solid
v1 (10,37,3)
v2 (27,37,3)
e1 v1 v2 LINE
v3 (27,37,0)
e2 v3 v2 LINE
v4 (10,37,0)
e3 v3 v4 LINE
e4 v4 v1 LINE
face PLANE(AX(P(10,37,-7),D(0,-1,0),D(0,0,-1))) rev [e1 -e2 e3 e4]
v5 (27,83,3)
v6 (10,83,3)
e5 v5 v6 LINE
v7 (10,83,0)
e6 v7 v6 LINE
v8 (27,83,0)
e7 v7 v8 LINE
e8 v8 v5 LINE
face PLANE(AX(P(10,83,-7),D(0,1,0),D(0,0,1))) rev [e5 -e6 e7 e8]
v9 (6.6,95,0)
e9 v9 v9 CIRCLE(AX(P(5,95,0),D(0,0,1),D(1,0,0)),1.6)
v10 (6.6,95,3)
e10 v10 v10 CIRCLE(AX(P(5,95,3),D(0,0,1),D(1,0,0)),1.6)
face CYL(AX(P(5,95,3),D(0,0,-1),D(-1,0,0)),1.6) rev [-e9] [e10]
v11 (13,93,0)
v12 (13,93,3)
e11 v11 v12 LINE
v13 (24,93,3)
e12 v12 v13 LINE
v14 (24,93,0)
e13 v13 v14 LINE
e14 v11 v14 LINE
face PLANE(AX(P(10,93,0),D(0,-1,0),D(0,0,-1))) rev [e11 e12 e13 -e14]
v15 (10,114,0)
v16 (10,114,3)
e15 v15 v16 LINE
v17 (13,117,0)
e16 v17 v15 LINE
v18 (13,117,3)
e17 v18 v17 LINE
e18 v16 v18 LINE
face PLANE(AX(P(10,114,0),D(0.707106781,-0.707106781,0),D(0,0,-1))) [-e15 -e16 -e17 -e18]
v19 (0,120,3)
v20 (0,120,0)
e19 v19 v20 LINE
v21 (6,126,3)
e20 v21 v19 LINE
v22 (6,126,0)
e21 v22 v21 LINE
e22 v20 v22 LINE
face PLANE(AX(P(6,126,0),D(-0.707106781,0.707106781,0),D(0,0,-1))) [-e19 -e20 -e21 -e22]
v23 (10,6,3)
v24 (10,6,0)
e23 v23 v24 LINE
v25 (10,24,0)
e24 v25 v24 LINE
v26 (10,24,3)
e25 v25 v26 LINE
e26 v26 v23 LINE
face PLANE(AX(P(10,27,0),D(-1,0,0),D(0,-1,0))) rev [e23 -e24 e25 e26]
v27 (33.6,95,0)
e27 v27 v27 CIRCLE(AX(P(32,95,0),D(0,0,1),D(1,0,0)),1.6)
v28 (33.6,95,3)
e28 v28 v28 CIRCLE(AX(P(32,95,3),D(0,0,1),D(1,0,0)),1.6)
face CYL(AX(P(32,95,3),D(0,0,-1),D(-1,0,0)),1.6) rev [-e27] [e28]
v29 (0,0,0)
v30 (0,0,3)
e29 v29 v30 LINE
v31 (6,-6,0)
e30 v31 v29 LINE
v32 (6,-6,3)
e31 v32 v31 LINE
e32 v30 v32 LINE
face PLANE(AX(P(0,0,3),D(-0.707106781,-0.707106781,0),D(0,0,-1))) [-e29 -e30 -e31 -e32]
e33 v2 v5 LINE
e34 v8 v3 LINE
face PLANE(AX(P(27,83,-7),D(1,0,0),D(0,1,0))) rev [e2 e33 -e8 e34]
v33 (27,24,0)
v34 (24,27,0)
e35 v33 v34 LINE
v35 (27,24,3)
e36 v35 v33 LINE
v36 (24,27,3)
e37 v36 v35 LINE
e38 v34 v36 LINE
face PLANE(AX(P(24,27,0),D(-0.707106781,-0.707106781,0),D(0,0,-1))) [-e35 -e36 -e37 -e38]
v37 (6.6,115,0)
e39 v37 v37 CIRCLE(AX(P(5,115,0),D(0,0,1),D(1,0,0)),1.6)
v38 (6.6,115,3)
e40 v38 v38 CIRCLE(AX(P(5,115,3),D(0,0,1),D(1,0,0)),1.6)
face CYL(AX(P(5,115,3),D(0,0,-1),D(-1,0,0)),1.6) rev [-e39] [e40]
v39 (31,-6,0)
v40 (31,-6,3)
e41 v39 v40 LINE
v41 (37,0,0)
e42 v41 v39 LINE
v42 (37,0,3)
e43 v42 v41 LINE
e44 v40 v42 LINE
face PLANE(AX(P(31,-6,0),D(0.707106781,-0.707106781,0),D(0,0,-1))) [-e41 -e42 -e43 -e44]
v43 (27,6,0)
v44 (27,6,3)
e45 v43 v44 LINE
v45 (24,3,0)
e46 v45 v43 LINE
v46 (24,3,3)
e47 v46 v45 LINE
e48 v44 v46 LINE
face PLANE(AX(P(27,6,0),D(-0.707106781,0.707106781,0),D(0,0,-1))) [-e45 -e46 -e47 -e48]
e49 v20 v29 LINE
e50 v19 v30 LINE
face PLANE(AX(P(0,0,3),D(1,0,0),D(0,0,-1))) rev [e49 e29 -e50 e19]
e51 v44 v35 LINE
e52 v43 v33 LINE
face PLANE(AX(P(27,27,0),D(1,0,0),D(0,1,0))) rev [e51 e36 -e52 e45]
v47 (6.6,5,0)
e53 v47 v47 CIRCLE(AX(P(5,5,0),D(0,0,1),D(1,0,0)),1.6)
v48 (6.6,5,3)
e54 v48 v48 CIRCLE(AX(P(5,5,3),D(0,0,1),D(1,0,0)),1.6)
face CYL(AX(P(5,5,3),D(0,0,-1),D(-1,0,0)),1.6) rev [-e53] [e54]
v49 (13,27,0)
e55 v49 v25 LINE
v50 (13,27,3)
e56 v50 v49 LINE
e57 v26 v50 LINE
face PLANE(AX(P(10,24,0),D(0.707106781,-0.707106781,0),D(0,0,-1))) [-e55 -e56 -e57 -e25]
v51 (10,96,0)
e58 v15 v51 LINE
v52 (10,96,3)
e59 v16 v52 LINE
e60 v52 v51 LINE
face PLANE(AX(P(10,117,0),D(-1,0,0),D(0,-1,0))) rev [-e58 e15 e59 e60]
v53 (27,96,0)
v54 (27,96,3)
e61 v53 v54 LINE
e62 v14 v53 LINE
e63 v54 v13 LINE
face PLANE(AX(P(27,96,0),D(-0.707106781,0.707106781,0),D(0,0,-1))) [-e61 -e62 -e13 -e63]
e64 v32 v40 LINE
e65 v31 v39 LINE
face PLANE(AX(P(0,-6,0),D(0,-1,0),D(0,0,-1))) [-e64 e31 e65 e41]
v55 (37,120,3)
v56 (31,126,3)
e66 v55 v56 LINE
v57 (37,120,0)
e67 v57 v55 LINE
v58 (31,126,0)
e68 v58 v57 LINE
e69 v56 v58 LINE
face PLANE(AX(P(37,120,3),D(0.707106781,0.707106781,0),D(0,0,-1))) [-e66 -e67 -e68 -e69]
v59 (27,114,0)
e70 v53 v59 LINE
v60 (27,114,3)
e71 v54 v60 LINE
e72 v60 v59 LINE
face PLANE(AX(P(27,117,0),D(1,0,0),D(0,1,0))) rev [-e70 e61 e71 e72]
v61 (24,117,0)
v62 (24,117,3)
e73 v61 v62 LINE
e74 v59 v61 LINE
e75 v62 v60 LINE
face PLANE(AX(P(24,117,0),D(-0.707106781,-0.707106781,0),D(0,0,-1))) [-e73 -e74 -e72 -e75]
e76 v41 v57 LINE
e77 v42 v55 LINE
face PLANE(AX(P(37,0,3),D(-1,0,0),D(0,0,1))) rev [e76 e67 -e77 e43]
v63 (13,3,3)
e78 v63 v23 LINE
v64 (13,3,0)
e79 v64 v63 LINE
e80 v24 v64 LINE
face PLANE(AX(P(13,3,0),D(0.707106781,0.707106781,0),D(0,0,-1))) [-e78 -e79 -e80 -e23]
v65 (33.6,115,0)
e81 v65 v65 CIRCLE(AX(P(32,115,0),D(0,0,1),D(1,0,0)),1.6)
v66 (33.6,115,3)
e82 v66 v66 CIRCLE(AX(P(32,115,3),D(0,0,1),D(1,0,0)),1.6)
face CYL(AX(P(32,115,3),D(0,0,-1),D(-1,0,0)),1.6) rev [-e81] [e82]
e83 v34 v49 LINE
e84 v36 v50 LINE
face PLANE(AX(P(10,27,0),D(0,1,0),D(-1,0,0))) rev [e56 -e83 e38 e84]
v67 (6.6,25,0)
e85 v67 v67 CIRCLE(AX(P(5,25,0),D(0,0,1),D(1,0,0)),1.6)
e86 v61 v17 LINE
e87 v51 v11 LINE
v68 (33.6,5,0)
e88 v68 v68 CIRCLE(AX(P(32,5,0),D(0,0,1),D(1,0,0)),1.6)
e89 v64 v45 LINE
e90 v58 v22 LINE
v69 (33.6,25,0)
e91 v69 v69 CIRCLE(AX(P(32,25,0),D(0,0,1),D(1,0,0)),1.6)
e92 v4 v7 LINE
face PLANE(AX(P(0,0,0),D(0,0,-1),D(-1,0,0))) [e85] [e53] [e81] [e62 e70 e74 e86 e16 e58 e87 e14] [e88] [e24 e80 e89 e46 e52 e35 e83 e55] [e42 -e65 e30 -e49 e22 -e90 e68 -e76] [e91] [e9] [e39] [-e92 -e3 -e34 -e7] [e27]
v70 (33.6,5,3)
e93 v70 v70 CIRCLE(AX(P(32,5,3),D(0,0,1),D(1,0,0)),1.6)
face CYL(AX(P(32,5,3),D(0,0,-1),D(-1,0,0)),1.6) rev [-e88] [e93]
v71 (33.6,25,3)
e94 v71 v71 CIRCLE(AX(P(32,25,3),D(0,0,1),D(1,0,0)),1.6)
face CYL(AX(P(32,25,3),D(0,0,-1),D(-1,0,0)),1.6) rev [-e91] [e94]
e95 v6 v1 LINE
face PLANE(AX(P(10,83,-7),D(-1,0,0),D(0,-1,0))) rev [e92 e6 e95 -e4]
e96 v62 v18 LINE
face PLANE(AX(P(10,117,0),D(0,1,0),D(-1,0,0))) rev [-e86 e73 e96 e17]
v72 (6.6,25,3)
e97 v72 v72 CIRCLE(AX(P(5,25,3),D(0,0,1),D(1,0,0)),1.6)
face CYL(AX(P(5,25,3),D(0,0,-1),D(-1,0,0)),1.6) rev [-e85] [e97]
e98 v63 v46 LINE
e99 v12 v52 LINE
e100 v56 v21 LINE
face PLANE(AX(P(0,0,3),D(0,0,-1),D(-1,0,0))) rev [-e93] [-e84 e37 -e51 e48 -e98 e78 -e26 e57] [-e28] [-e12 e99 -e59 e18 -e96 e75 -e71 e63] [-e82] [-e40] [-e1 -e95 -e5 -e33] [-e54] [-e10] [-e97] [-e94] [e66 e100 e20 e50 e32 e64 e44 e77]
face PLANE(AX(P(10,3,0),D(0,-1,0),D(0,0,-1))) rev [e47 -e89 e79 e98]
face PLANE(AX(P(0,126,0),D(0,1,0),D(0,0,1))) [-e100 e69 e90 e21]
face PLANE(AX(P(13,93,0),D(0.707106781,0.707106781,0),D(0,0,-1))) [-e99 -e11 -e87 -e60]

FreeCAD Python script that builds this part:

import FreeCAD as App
import Part
import Sketcher

V = App.Vector


def edges_at(feature, points):
    """Names of the edges that pass closest to the given points."""
    edges = feature.Shape.Edges
    near = lambda p: min(range(len(edges)), key=lambda i: edges[i].distToShape(Part.Vertex(*p))[0])
    return sorted({f"Edge{near(p) + 1}" for p in points})


def add_polygon(sketch, points):
    """Adds a closed chain of lines whose ends are joined by coincident constraints."""
    first, n = sketch.GeometryCount, len(points)
    for a, b in zip(points, points[1:] + points[:1]):
        sketch.addGeometry(Part.LineSegment(App.Vector(*a, 0), App.Vector(*b, 0)), False)
    for i in range(n):
        sketch.addConstraint(Sketcher.Constraint("Coincident", first + i, 2, first + (i + 1) % n, 1))

doc = App.newDocument("Part")
body = doc.addObject("PartDesign::Body", "Body")

# Sketch on XY plane
sketch1 = body.newObject("Sketcher::SketchObject", "Sketch")
sketch1.AttachmentSupport = (doc.getObject("XY_Plane"), [""])
sketch1.MapMode = "FlatFace"
add_polygon(sketch1, [(0, 120), (0, 0), (37, 0), (37, 120)])  # lines 0-3
sketch1.addGeometry(Part.Circle(V(5, 5, 0), V(0, 0, 1), 1.6), False)  # 4
sketch1.addGeometry(Part.Circle(V(5, 25, 0), V(0, 0, 1), 1.6), False)  # 5
sketch1.addGeometry(Part.Circle(V(32, 5, 0), V(0, 0, 1), 1.6), False)  # 6
sketch1.addGeometry(Part.Circle(V(32, 25, 0), V(0, 0, 1), 1.6), False)  # 7
sketch1.addGeometry(Part.Circle(V(5, 95, 0), V(0, 0, 1), 1.6), False)  # 8
sketch1.addGeometry(Part.Circle(V(5, 115, 0), V(0, 0, 1), 1.6), False)  # 9
sketch1.addGeometry(Part.Circle(V(32, 95, 0), V(0, 0, 1), 1.6), False)  # 10
sketch1.addGeometry(Part.Circle(V(32, 115, 0), V(0, 0, 1), 1.6), False)  # 11
sketch1.addConstraint([
    Sketcher.Constraint("Vertical", 0),
    Sketcher.Constraint("Horizontal", 1),
    Sketcher.Constraint("Vertical", 2),
    Sketcher.Constraint("Horizontal", 3),
    Sketcher.Constraint("Coincident", 0, 2, -1, 1),
    Sketcher.Constraint("Equal", 4, 5),
    Sketcher.Constraint("Equal", 5, 6),
    Sketcher.Constraint("Equal", 6, 7),
    Sketcher.Constraint("Equal", 7, 8),
    Sketcher.Constraint("Equal", 8, 9),
    Sketcher.Constraint("Equal", 9, 10),
    Sketcher.Constraint("Equal", 10, 11),
    Sketcher.Constraint("Horizontal", 4, 3, 6, 3),
    Sketcher.Constraint("Horizontal", 5, 3, 7, 3),
    Sketcher.Constraint("Horizontal", 8, 3, 10, 3),
    Sketcher.Constraint("Horizontal", 9, 3, 11, 3),
    Sketcher.Constraint("Vertical", 4, 3, 5, 3),
    Sketcher.Constraint("Vertical", 6, 3, 7, 3),
    Sketcher.Constraint("Vertical", 5, 3, 8, 3),
    Sketcher.Constraint("Vertical", 8, 3, 9, 3),
    Sketcher.Constraint("Vertical", 7, 3, 10, 3),
    Sketcher.Constraint("Vertical", 10, 3, 11, 3),
    Sketcher.Constraint("Diameter", 4, 3.2),
    Sketcher.Constraint("DistanceX", 1, 1, 1, 2, 37.0),
    Sketcher.Constraint("DistanceY", 0, 2, 0, 1, 120.0),
    Sketcher.Constraint("DistanceX", -1, 1, 4, 3, 5.0),
    Sketcher.Constraint("DistanceY", -1, 1, 4, 3, 5.0),
    Sketcher.Constraint("DistanceY", -1, 1, 5, 3, 25.0),
    Sketcher.Constraint("DistanceX", -1, 1, 6, 3, 32.0),
    Sketcher.Constraint("DistanceY", -1, 1, 8, 3, 95.0),
    Sketcher.Constraint("DistanceY", -1, 1, 9, 3, 115.0),
])
pad1 = body.newObject("PartDesign::Pad", "Pad")
pad1.Profile = sketch1
pad1.Length = 3

# Sketch on XY plane
sketch2 = body.newObject("Sketcher::SketchObject", "Sketch001")
sketch2.AttachmentSupport = (doc.getObject("XY_Plane"), [""])
sketch2.MapMode = "FlatFace"
sketch2.AttachmentOffset = App.Placement(V(0, 0, 3), App.Rotation())
add_polygon(sketch2, [(10, 117), (10, 93), (27, 93), (27, 117)])  # lines 0-3
add_polygon(sketch2, [(10, 27), (10, 3), (27, 3), (27, 27)])  # lines 4-7
sketch2.addConstraint([
    Sketcher.Constraint("Vertical", 0),
    Sketcher.Constraint("Horizontal", 1),
    Sketcher.Constraint("Vertical", 2),
    Sketcher.Constraint("Horizontal", 3),
    Sketcher.Constraint("Vertical", 4),
    Sketcher.Constraint("Horizontal", 5),
    Sketcher.Constraint("Vertical", 6),
    Sketcher.Constraint("Horizontal", 7),
    Sketcher.Constraint("Vertical", 3, 2, 4, 2),
    Sketcher.Constraint("Vertical", 2, 2, 5, 2),
    Sketcher.Constraint("Equal", 2, 4),
    Sketcher.Constraint("DistanceX", 1, 1, 1, 2, 17.0),
    Sketcher.Constraint("DistanceY", 0, 2, 0, 1, 24.0),
    Sketcher.Constraint("DistanceX", -1, 1, 0, 2, 10.0),
    Sketcher.Constraint("DistanceY", -1, 1, 0, 2, 93.0),
    Sketcher.Constraint("DistanceY", -1, 1, 4, 2, 3.0),
])
pocket1 = body.newObject("PartDesign::Pocket", "Pocket")
pocket1.Profile = sketch2
pocket1.Type = "ThroughAll"

# Sketch on XY plane
sketch3 = body.newObject("Sketcher::SketchObject", "Sketch002")
sketch3.AttachmentSupport = (doc.getObject("XY_Plane"), [""])
sketch3.MapMode = "FlatFace"
sketch3.AttachmentOffset = App.Placement(V(0, 0, 3), App.Rotation())
add_polygon(sketch3, [(0, 126), (0, 120), (37, 120), (37, 126)])  # lines 0-3
add_polygon(sketch3, [(0, 0), (0, -6), (37, -6), (37, 0)])  # lines 4-7
sketch3.addConstraint([
    Sketcher.Constraint("Vertical", 0),
    Sketcher.Constraint("Horizontal", 1),
    Sketcher.Constraint("Vertical", 2),
    Sketcher.Constraint("Horizontal", 3),
    Sketcher.Constraint("Vertical", 4),
    Sketcher.Constraint("Horizontal", 5),
    Sketcher.Constraint("Vertical", 6),
    Sketcher.Constraint("Horizontal", 7),
    Sketcher.Constraint("Coincident", 7, 2, -1, 1),
    Sketcher.Constraint("PointOnObject", 0, 2, -2),
    Sketcher.Constraint("Vertical", 2, 2, 5, 2),
    Sketcher.Constraint("Equal", 2, 4),
    Sketcher.Constraint("DistanceX", 1, 1, 1, 2, 37.0),
    Sketcher.Constraint("DistanceY", 0, 2, 0, 1, 6.0),
    Sketcher.Constraint("DistanceY", -1, 1, 0, 2, 120.0),
])
pad2 = body.newObject("PartDesign::Pad", "Pad001")
pad2.Profile = sketch3
pad2.Length = 3
pad2.Reversed = True
doc.recompute()

chamfer = body.newObject("PartDesign::Chamfer", "Chamfer")
chamfer.Base = (pad2, edges_at(pad2, [
    (0, 126, 1.5),
    (37, 126, 1.5),
    (0, -6, 1.5),
    (37, -6, 1.5),
]))
chamfer.Size = 6
doc.recompute()

chamfer2 = body.newObject("PartDesign::Chamfer", "Chamfer001")
chamfer2.Base = (chamfer, edges_at(chamfer, [
    (10, 93, 1.5),
    (10, 117, 1.5),
    (27, 117, 1.5),
    (27, 93, 1.5),
    (10, 3, 1.5),
    (10, 27, 1.5),
    (27, 27, 1.5),
    (27, 3, 1.5),
]))
chamfer2.Size = 3

# Sketch on XY plane
sketch4 = body.newObject("Sketcher::SketchObject", "Sketch003")
sketch4.AttachmentSupport = (doc.getObject("XY_Plane"), [""])
sketch4.MapMode = "FlatFace"
sketch4.AttachmentOffset = App.Placement(V(0, 0, 3), App.Rotation())
add_polygon(sketch4, [(10, 83), (10, 37), (27, 37), (27, 83)])  # lines 0-3
sketch4.addConstraint([
    Sketcher.Constraint("Vertical", 0),
    Sketcher.Constraint("Horizontal", 1),
    Sketcher.Constraint("Vertical", 2),
    Sketcher.Constraint("Horizontal", 3),
    Sketcher.Constraint("DistanceX", 1, 1, 1, 2, 17.0),
    Sketcher.Constraint("DistanceY", 0, 2, 0, 1, 46.0),
    Sketcher.Constraint("DistanceX", -1, 1, 0, 2, 10.0),
    Sketcher.Constraint("DistanceY", -1, 1, 0, 2, 37.0),
])
pocket2 = body.newObject("PartDesign::Pocket", "Pocket001")
pocket2.Profile = sketch4
pocket2.Length = 10

doc.recompute()
